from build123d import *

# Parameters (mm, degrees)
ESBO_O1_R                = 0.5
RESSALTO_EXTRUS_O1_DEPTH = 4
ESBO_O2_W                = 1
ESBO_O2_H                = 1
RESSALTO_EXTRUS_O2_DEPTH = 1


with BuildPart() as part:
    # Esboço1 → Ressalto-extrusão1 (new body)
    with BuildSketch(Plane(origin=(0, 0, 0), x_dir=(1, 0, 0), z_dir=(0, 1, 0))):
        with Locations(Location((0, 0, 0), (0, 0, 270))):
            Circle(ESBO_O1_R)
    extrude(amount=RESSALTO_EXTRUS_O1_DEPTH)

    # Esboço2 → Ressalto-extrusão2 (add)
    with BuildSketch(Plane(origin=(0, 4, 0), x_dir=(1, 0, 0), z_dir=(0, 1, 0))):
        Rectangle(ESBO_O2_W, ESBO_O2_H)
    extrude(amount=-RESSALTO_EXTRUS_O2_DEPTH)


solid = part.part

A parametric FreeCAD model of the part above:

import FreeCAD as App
import Part
import Sketcher
from FreeCAD import Vector
Q = App.Units.Quantity

doc = App.newDocument("Part")
body = doc.addObject("PartDesign::Body", "Body")

sketch1 = body.newObject("Sketcher::SketchObject", "Sketch")
sketch1.AttachmentSupport = (doc.getObject("XZ_Plane"), [""])
sketch1.MapMode = "FlatFace"
sketch1.addGeometry(Part.Circle(Vector(0, 0, 0), Vector(0, 0, 1), 0.5), False)
sketch1.addConstraint([
    Sketcher.Constraint("Coincident", 0, 3, -1, 1),
    Sketcher.Constraint("Diameter", 0, Q("1 mm")),
])
pad1 = body.newObject("PartDesign::Pad", "Pad")
pad1.Profile = sketch1
pad1.Length = 4
pad1.Reversed = True

sketch2 = body.newObject("Sketcher::SketchObject", "Sketch001")
sketch2.AttachmentSupport = (doc.getObject("XZ_Plane"), [""])
sketch2.MapMode = "FlatFace"
sketch2.AttachmentOffset = App.Placement(Vector(0, 0, -4), App.Rotation())
sketch2.addGeometry([
    Part.LineSegment(Vector(-0.5, -0.5, 0), Vector(-0.5, 0.5, 0)),
    Part.LineSegment(Vector(-0.5, 0.5, 0), Vector(0.5, 0.5, 0)),
    Part.LineSegment(Vector(0.5, 0.5, 0), Vector(0.5, -0.5, 0)),
    Part.LineSegment(Vector(0.5, -0.5, 0), Vector(-0.5, -0.5, 0)),
], False)
sketch2.addConstraint([
    Sketcher.Constraint("Coincident", 0, 2, 1, 1),
    Sketcher.Constraint("Coincident", 1, 2, 2, 1),
    Sketcher.Constraint("Coincident", 2, 2, 3, 1),
    Sketcher.Constraint("Coincident", 3, 2, 0, 1),
    Sketcher.Constraint("Vertical", 0),
    Sketcher.Constraint("Horizontal", 1),
    Sketcher.Constraint("Vertical", 2),
    Sketcher.Constraint("Horizontal", 3),
    Sketcher.Constraint("Symmetric", 0, 2, 2, 2, -1, 1),
    Sketcher.Constraint("Equal", 3, 0),
    Sketcher.Constraint("DistanceX", 1, 1, 1, 2, Q("1 mm")),
])
pad2 = body.newObject("PartDesign::Pad", "Pad001")
pad2.Profile = sketch2
pad2.Length = 1

doc.recompute()
